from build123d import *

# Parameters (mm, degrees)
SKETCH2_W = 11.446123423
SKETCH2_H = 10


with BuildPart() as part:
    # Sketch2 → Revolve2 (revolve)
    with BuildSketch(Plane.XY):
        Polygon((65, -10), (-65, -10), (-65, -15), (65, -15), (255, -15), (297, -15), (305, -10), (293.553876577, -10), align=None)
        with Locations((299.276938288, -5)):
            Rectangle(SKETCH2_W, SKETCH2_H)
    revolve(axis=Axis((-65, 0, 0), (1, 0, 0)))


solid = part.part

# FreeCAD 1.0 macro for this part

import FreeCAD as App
import Part
import Sketcher

V = App.Vector
Q = App.Units.Quantity

doc = App.newDocument("Part")
body = doc.addObject("PartDesign::Body", "Body")

sketch1 = body.newObject("Sketcher::SketchObject", "Sketch")
sketch1.AttachmentSupport = (doc.getObject("XY_Plane"), [""])
sketch1.MapMode = "FlatFace"
sketch1.addGeometry([
    Part.LineSegment(V(-65, -10, 0), V(-65, -15, 0)),
    Part.LineSegment(V(-65, -15, 0), V(297, -15, 0)),
    Part.LineSegment(V(297, -15, 0), V(305, -10, 0)),
    Part.LineSegment(V(305, -10, 0), V(305, 0, 0)),
    Part.LineSegment(V(305, 0, 0), V(293.553877, 0, 0)),
    Part.LineSegment(V(293.553877, 0, 0), V(293.553877, -10, 0)),
    Part.LineSegment(V(293.553877, -10, 0), V(-65, -10, 0)),
], False)
sketch1.addConstraint([
    Sketcher.Constraint("Coincident", 0, 2, 1, 1),
    Sketcher.Constraint("Coincident", 1, 2, 2, 1),
    Sketcher.Constraint("Coincident", 2, 2, 3, 1),
    Sketcher.Constraint("Coincident", 3, 2, 4, 1),
    Sketcher.Constraint("Coincident", 4, 2, 5, 1),
    Sketcher.Constraint("Coincident", 5, 2, 6, 1),
    Sketcher.Constraint("Coincident", 6, 2, 0, 1),
    Sketcher.Constraint("Vertical", 0),
    Sketcher.Constraint("Horizontal", 1),
    Sketcher.Constraint("Vertical", 3),
    Sketcher.Constraint("Horizontal", 4),
    Sketcher.Constraint("Vertical", 5),
    Sketcher.Constraint("Horizontal", 6),
    Sketcher.Constraint("PointOnObject", 3, 2, -1),
    Sketcher.Constraint("Horizontal", 2, 2, 5, 2),
    Sketcher.Constraint("DistanceX", 1, 1, 1, 2, Q("362 mm")),
    Sketcher.Constraint("DistanceY", 0, 2, 0, 1, Q("5 mm")),
    Sketcher.Constraint("DistanceY", 3, 1, 3, 2, Q("10 mm")),
    Sketcher.Constraint("DistanceX", 0, 2, -1, 1, Q("65 mm")),
    Sketcher.Constraint("DistanceX", -1, 1, 2, 2, Q("305 mm")),
    Sketcher.Constraint("DistanceX", 4, 2, 4, 1, Q("11.446123 mm")),
])
revolution = body.newObject("PartDesign::Revolution", "Revolution")
revolution.Profile = sketch1
revolution.ReferenceAxis = (sketch1, ["H_Axis"])
revolution.Angle = 360

doc.recompute()
